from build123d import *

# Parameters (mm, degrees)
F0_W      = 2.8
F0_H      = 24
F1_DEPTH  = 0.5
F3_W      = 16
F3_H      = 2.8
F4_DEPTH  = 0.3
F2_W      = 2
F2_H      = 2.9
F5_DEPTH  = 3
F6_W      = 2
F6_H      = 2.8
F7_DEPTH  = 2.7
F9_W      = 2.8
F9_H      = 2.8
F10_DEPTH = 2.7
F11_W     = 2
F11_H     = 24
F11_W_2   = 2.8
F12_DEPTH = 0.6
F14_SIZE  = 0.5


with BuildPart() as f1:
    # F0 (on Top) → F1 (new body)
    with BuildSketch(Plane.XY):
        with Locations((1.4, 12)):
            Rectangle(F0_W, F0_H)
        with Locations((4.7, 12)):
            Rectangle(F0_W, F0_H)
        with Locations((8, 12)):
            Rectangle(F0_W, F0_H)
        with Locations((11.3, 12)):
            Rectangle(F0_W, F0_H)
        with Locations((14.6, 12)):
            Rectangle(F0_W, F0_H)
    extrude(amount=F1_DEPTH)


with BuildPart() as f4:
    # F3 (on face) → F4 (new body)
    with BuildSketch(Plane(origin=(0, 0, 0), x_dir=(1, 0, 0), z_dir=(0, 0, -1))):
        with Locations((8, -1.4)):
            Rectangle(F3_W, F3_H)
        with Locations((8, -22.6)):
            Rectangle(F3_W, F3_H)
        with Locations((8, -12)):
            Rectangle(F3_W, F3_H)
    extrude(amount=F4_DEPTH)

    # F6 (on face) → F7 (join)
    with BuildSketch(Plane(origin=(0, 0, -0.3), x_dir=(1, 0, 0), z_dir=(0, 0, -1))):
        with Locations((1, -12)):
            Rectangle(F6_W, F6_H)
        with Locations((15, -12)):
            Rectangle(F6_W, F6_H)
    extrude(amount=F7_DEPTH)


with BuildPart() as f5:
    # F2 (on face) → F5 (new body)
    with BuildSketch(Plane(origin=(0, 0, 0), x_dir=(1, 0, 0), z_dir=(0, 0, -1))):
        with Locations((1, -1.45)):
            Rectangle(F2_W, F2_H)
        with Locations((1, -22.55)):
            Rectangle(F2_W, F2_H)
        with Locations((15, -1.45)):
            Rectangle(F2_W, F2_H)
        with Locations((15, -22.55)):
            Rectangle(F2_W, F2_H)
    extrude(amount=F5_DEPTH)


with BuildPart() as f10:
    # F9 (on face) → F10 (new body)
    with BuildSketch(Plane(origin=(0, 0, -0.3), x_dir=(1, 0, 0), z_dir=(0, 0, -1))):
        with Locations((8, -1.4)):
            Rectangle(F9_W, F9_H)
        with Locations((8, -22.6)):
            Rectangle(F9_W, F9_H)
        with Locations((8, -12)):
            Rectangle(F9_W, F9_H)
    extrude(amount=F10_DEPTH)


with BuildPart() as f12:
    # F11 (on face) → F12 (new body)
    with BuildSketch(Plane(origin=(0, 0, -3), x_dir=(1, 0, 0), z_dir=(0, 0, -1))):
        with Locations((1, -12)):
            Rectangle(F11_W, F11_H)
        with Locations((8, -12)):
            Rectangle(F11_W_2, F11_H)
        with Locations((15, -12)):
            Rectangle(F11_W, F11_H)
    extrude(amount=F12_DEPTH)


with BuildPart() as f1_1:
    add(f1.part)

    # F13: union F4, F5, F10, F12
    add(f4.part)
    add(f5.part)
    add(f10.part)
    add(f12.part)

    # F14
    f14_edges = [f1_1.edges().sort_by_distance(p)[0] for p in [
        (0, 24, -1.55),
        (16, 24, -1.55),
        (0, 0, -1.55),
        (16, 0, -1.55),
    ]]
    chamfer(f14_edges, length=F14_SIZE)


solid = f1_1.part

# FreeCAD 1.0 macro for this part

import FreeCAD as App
import Part
import Sketcher


def edges_at(feature, points):
    """Names of the edges that pass closest to the given points."""
    edges = feature.Shape.Edges
    near = lambda p: min(range(len(edges)), key=lambda i: edges[i].distToShape(Part.Vertex(*p))[0])
    return sorted({f"Edge{near(p) + 1}" for p in points})


def add_polygon(sketch, points):
    """Adds a closed chain of lines whose ends are joined by coincident constraints."""
    first, n = sketch.GeometryCount, len(points)
    for a, b in zip(points, points[1:] + points[:1]):
        sketch.addGeometry(Part.LineSegment(App.Vector(*a, 0), App.Vector(*b, 0)), False)
    for i in range(n):
        sketch.addConstraint(Sketcher.Constraint("Coincident", first + i, 2, first + (i + 1) % n, 1))

doc = App.newDocument("Part")
body = doc.addObject("PartDesign::Body", "Body")
body.AllowCompound = True

# Sketch on XY plane
sketch1 = body.newObject("Sketcher::SketchObject", "Sketch")
sketch1.AttachmentSupport = (doc.getObject("XY_Plane"), [""])
sketch1.MapMode = "FlatFace"
add_polygon(sketch1, [(0, 24), (0, 0), (2.8, 0), (2.8, 24)])  # lines 0-3
add_polygon(sketch1, [(3.3, 24), (3.3, 0), (6.1, 0), (6.1, 24)])  # lines 4-7
add_polygon(sketch1, [(6.6, 24), (6.6, 0), (9.4, 0), (9.4, 24)])  # lines 8-11
add_polygon(sketch1, [(9.9, 24), (9.9, 0), (12.7, 0), (12.7, 24)])  # lines 12-15
add_polygon(sketch1, [(13.2, 24), (13.2, 0), (16, 0), (16, 24)])  # lines 16-19
sketch1.addConstraint(Sketcher.Constraint("Vertical", 0))
sketch1.addConstraint(Sketcher.Constraint("Horizontal", 1))
sketch1.addConstraint(Sketcher.Constraint("Vertical", 2))
sketch1.addConstraint(Sketcher.Constraint("Horizontal", 3))
sketch1.addConstraint(Sketcher.Constraint("Vertical", 4))
sketch1.addConstraint(Sketcher.Constraint("Horizontal", 5))
sketch1.addConstraint(Sketcher.Constraint("Vertical", 6))
sketch1.addConstraint(Sketcher.Constraint("Horizontal", 7))
sketch1.addConstraint(Sketcher.Constraint("Vertical", 8))
sketch1.addConstraint(Sketcher.Constraint("Horizontal", 9))
sketch1.addConstraint(Sketcher.Constraint("Vertical", 10))
sketch1.addConstraint(Sketcher.Constraint("Horizontal", 11))
sketch1.addConstraint(Sketcher.Constraint("Vertical", 12))
sketch1.addConstraint(Sketcher.Constraint("Horizontal", 13))
sketch1.addConstraint(Sketcher.Constraint("Vertical", 14))
sketch1.addConstraint(Sketcher.Constraint("Horizontal", 15))
sketch1.addConstraint(Sketcher.Constraint("Vertical", 16))
sketch1.addConstraint(Sketcher.Constraint("Horizontal", 17))
sketch1.addConstraint(Sketcher.Constraint("Vertical", 18))
sketch1.addConstraint(Sketcher.Constraint("Horizontal", 19))
sketch1.addConstraint(Sketcher.Constraint("Coincident", 0, 2, -1, 1))
sketch1.addConstraint(Sketcher.Constraint("PointOnObject", 4, 2, -1))
sketch1.addConstraint(Sketcher.Constraint("PointOnObject", 8, 2, -1))
sketch1.addConstraint(Sketcher.Constraint("PointOnObject", 12, 2, -1))
sketch1.addConstraint(Sketcher.Constraint("PointOnObject", 16, 2, -1))
sketch1.addConstraint(Sketcher.Constraint("Horizontal", 3, 2, 6, 2))
sketch1.addConstraint(Sketcher.Constraint("Horizontal", 7, 2, 10, 2))
sketch1.addConstraint(Sketcher.Constraint("Horizontal", 11, 2, 14, 2))
sketch1.addConstraint(Sketcher.Constraint("Horizontal", 15, 2, 18, 2))
sketch1.addConstraint(Sketcher.Constraint("Equal", 3, 5))
sketch1.addConstraint(Sketcher.Constraint("Equal", 7, 9))
sketch1.addConstraint(Sketcher.Constraint("Equal", 11, 13))
sketch1.addConstraint(Sketcher.Constraint("Equal", 15, 17))
sketch1.addConstraint(Sketcher.Constraint("DistanceY", 0, 2, 0, 1, 24.0))
sketch1.addConstraint(Sketcher.Constraint("DistanceX", 1, 1, 1, 2, 2.8))
sketch1.addConstraint(Sketcher.Constraint("DistanceX", -1, 1, 17, 2, 16.0))
sketch1.addConstraint(Sketcher.Constraint("DistanceX", -1, 1, 4, 2, 3.3))
sketch1.addConstraint(Sketcher.Constraint("DistanceX", -1, 1, 8, 2, 6.6))
sketch1.addConstraint(Sketcher.Constraint("DistanceX", -1, 1, 12, 2, 9.9))
pad1 = body.newObject("PartDesign::Pad", "Pad")
pad1.Profile = sketch1
pad1.Length = 0.5
body2 = doc.addObject("PartDesign::Body", "Body001")
body2.AllowCompound = True

# Sketch on XY plane
sketch2 = body2.newObject("Sketcher::SketchObject", "Sketch001")
sketch2.AttachmentSupport = (doc.getObject("XY_Plane001"), [""])
sketch2.MapMode = "FlatFace"
add_polygon(sketch2, [(0, 0), (0, 2.8), (16, 2.8), (16, 0)])  # lines 0-3
add_polygon(sketch2, [(0, 21.2), (0, 24), (16, 24), (16, 21.2)])  # lines 4-7
add_polygon(sketch2, [(0, 10.6), (0, 13.4), (16, 13.4), (16, 10.6)])  # lines 8-11
sketch2.addConstraint(Sketcher.Constraint("Vertical", 0))
sketch2.addConstraint(Sketcher.Constraint("Horizontal", 1))
sketch2.addConstraint(Sketcher.Constraint("Vertical", 2))
sketch2.addConstraint(Sketcher.Constraint("Horizontal", 3))
sketch2.addConstraint(Sketcher.Constraint("Vertical", 4))
sketch2.addConstraint(Sketcher.Constraint("Horizontal", 5))
sketch2.addConstraint(Sketcher.Constraint("Vertical", 6))
sketch2.addConstraint(Sketcher.Constraint("Horizontal", 7))
sketch2.addConstraint(Sketcher.Constraint("Vertical", 8))
sketch2.addConstraint(Sketcher.Constraint("Horizontal", 9))
sketch2.addConstraint(Sketcher.Constraint("Vertical", 10))
sketch2.addConstraint(Sketcher.Constraint("Horizontal", 11))
sketch2.addConstraint(Sketcher.Constraint("Coincident", 3, 2, -1, 1))
sketch2.addConstraint(Sketcher.Constraint("PointOnObject", 4, 2, -2))
sketch2.addConstraint(Sketcher.Constraint("PointOnObject", 8, 2, -2))
sketch2.addConstraint(Sketcher.Constraint("Vertical", 2, 2, 5, 2))
sketch2.addConstraint(Sketcher.Constraint("Vertical", 6, 2, 9, 2))
sketch2.addConstraint(Sketcher.Constraint("Equal", 2, 4))
sketch2.addConstraint(Sketcher.Constraint("Equal", 6, 8))
sketch2.addConstraint(Sketcher.Constraint("DistanceX", 1, 1, 1, 2, 16.0))
sketch2.addConstraint(Sketcher.Constraint("DistanceY", 0, 1, 0, 2, 2.8))
sketch2.addConstraint(Sketcher.Constraint("DistanceY", -1, 1, 4, 2, 24.0))
sketch2.addConstraint(Sketcher.Constraint("DistanceY", -1, 1, 8, 2, 13.4))
pad2 = body2.newObject("PartDesign::Pad", "Pad001")
pad2.Profile = sketch2
pad2.Length = 0.3
pad2.Reversed = True

# Sketch on XY plane
sketch3 = body2.newObject("Sketcher::SketchObject", "Sketch002")
sketch3.AttachmentSupport = (doc.getObject("XY_Plane001"), [""])
sketch3.MapMode = "FlatFace"
sketch3.AttachmentOffset = App.Placement(App.Vector(0, 0, -0.3), App.Rotation())
add_polygon(sketch3, [(0, 10.6), (0, 13.4), (2, 13.4), (2, 10.6)])  # lines 0-3
add_polygon(sketch3, [(14, 10.6), (14, 13.4), (16, 13.4), (16, 10.6)])  # lines 4-7
sketch3.addConstraint(Sketcher.Constraint("Vertical", 0))
sketch3.addConstraint(Sketcher.Constraint("Horizontal", 1))
sketch3.addConstraint(Sketcher.Constraint("Vertical", 2))
sketch3.addConstraint(Sketcher.Constraint("Horizontal", 3))
sketch3.addConstraint(Sketcher.Constraint("Vertical", 4))
sketch3.addConstraint(Sketcher.Constraint("Horizontal", 5))
sketch3.addConstraint(Sketcher.Constraint("Vertical", 6))
sketch3.addConstraint(Sketcher.Constraint("Horizontal", 7))
sketch3.addConstraint(Sketcher.Constraint("PointOnObject", 0, 2, -2))
sketch3.addConstraint(Sketcher.Constraint("Horizontal", 1, 2, 4, 2))
sketch3.addConstraint(Sketcher.Constraint("Horizontal", 3, 2, 6, 2))
sketch3.addConstraint(Sketcher.Constraint("Equal", 3, 5))
sketch3.addConstraint(Sketcher.Constraint("DistanceX", 1, 1, 1, 2, 2.0))
sketch3.addConstraint(Sketcher.Constraint("DistanceY", 0, 1, 0, 2, 2.8))
sketch3.addConstraint(Sketcher.Constraint("DistanceX", -1, 1, 4, 2, 14.0))
sketch3.addConstraint(Sketcher.Constraint("DistanceY", -1, 1, 0, 2, 13.4))
pad3 = body2.newObject("PartDesign::Pad", "Pad002")
pad3.Profile = sketch3
pad3.Length = 2.7
pad3.Reversed = True
body3 = doc.addObject("PartDesign::Body", "Body002")
body3.AllowCompound = True

# Sketch on XY plane
sketch4 = body3.newObject("Sketcher::SketchObject", "Sketch003")
sketch4.AttachmentSupport = (doc.getObject("XY_Plane002"), [""])
sketch4.MapMode = "FlatFace"
add_polygon(sketch4, [(0, 0), (0, 2.9), (2, 2.9), (2, 0)])  # lines 0-3
add_polygon(sketch4, [(0, 21.1), (0, 24), (2, 24), (2, 21.1)])  # lines 4-7
add_polygon(sketch4, [(14, 0), (14, 2.9), (16, 2.9), (16, 0)])  # lines 8-11
add_polygon(sketch4, [(14, 21.1), (14, 24), (16, 24), (16, 21.1)])  # lines 12-15
sketch4.addConstraint(Sketcher.Constraint("Vertical", 0))
sketch4.addConstraint(Sketcher.Constraint("Horizontal", 1))
sketch4.addConstraint(Sketcher.Constraint("Vertical", 2))
sketch4.addConstraint(Sketcher.Constraint("Horizontal", 3))
sketch4.addConstraint(Sketcher.Constraint("Vertical", 4))
sketch4.addConstraint(Sketcher.Constraint("Horizontal", 5))
sketch4.addConstraint(Sketcher.Constraint("Vertical", 6))
sketch4.addConstraint(Sketcher.Constraint("Horizontal", 7))
sketch4.addConstraint(Sketcher.Constraint("Vertical", 8))
sketch4.addConstraint(Sketcher.Constraint("Horizontal", 9))
sketch4.addConstraint(Sketcher.Constraint("Vertical", 10))
sketch4.addConstraint(Sketcher.Constraint("Horizontal", 11))
sketch4.addConstraint(Sketcher.Constraint("Vertical", 12))
sketch4.addConstraint(Sketcher.Constraint("Horizontal", 13))
sketch4.addConstraint(Sketcher.Constraint("Vertical", 14))
sketch4.addConstraint(Sketcher.Constraint("Horizontal", 15))
sketch4.addConstraint(Sketcher.Constraint("Coincident", 3, 2, -1, 1))
sketch4.addConstraint(Sketcher.Constraint("PointOnObject", 4, 2, -2))
sketch4.addConstraint(Sketcher.Constraint("PointOnObject", 10, 2, -1))
sketch4.addConstraint(Sketcher.Constraint("Horizontal", 1, 2, 8, 2))
sketch4.addConstraint(Sketcher.Constraint("Horizontal", 5, 2, 12, 2))
sketch4.addConstraint(Sketcher.Constraint("Horizontal", 7, 2, 14, 2))
sketch4.addConstraint(Sketcher.Constraint("Vertical", 2, 2, 5, 2))
sketch4.addConstraint(Sketcher.Constraint("Vertical", 11, 2, 12, 2))
sketch4.addConstraint(Sketcher.Constraint("Vertical", 10, 2, 13, 2))
sketch4.addConstraint(Sketcher.Constraint("Equal", 7, 9))
sketch4.addConstraint(Sketcher.Constraint("Equal", 2, 4))
sketch4.addConstraint(Sketcher.Constraint("DistanceX", 1, 1, 1, 2, 2.0))
sketch4.addConstraint(Sketcher.Constraint("DistanceY", 0, 1, 0, 2, 2.9))
sketch4.addConstraint(Sketcher.Constraint("DistanceY", -1, 1, 4, 2, 24.0))
sketch4.addConstraint(Sketcher.Constraint("DistanceX", -1, 1, 8, 2, 14.0))
pad4 = body3.newObject("PartDesign::Pad", "Pad003")
pad4.Profile = sketch4
pad4.Length = 3
pad4.Reversed = True
body4 = doc.addObject("PartDesign::Body", "Body003")
body4.AllowCompound = True

# Sketch on XY plane
sketch5 = body4.newObject("Sketcher::SketchObject", "Sketch004")
sketch5.AttachmentSupport = (doc.getObject("XY_Plane003"), [""])
sketch5.MapMode = "FlatFace"
sketch5.AttachmentOffset = App.Placement(App.Vector(0, 0, -0.3), App.Rotation())
add_polygon(sketch5, [(6.6, 0), (6.6, 2.8), (9.4, 2.8), (9.4, 0)])  # lines 0-3
add_polygon(sketch5, [(6.6, 21.2), (6.6, 24), (9.4, 24), (9.4, 21.2)])  # lines 4-7
add_polygon(sketch5, [(6.6, 10.6), (6.6, 13.4), (9.4, 13.4), (9.4, 10.6)])  # lines 8-11
sketch5.addConstraint(Sketcher.Constraint("Vertical", 0))
sketch5.addConstraint(Sketcher.Constraint("Horizontal", 1))
sketch5.addConstraint(Sketcher.Constraint("Vertical", 2))
sketch5.addConstraint(Sketcher.Constraint("Horizontal", 3))
sketch5.addConstraint(Sketcher.Constraint("Vertical", 4))
sketch5.addConstraint(Sketcher.Constraint("Horizontal", 5))
sketch5.addConstraint(Sketcher.Constraint("Vertical", 6))
sketch5.addConstraint(Sketcher.Constraint("Horizontal", 7))
sketch5.addConstraint(Sketcher.Constraint("Vertical", 8))
sketch5.addConstraint(Sketcher.Constraint("Horizontal", 9))
sketch5.addConstraint(Sketcher.Constraint("Vertical", 10))
sketch5.addConstraint(Sketcher.Constraint("Horizontal", 11))
sketch5.addConstraint(Sketcher.Constraint("PointOnObject", 2, 2, -1))
sketch5.addConstraint(Sketcher.Constraint("Vertical", 3, 2, 4, 2))
sketch5.addConstraint(Sketcher.Constraint("Vertical", 2, 2, 5, 2))
sketch5.addConstraint(Sketcher.Constraint("Vertical", 7, 2, 8, 2))
sketch5.addConstraint(Sketcher.Constraint("Vertical", 6, 2, 9, 2))
sketch5.addConstraint(Sketcher.Constraint("Equal", 11, 0))
sketch5.addConstraint(Sketcher.Constraint("Equal", 2, 4))
sketch5.addConstraint(Sketcher.Constraint("Equal", 6, 8))
sketch5.addConstraint(Sketcher.Constraint("DistanceX", 1, 1, 1, 2, 2.8))
sketch5.addConstraint(Sketcher.Constraint("DistanceY", -1, 1, 4, 2, 24.0))
sketch5.addConstraint(Sketcher.Constraint("DistanceX", -1, 1, 0, 2, 6.6))
sketch5.addConstraint(Sketcher.Constraint("DistanceY", -1, 1, 8, 2, 13.4))
pad5 = body4.newObject("PartDesign::Pad", "Pad004")
pad5.Profile = sketch5
pad5.Length = 2.7
pad5.Reversed = True
body5 = doc.addObject("PartDesign::Body", "Body004")
body5.AllowCompound = True

# Sketch on XY plane
sketch6 = body5.newObject("Sketcher::SketchObject", "Sketch005")
sketch6.AttachmentSupport = (doc.getObject("XY_Plane004"), [""])
sketch6.MapMode = "FlatFace"
sketch6.AttachmentOffset = App.Placement(App.Vector(0, 0, -3), App.Rotation())
add_polygon(sketch6, [(0, 0), (0, 24), (2, 24), (2, 0)])  # lines 0-3
add_polygon(sketch6, [(6.6, 0), (6.6, 24), (9.4, 24), (9.4, 0)])  # lines 4-7
add_polygon(sketch6, [(14, 0), (14, 24), (16, 24), (16, 0)])  # lines 8-11
sketch6.addConstraint(Sketcher.Constraint("Vertical", 0))
sketch6.addConstraint(Sketcher.Constraint("Horizontal", 1))
sketch6.addConstraint(Sketcher.Constraint("Vertical", 2))
sketch6.addConstraint(Sketcher.Constraint("Horizontal", 3))
sketch6.addConstraint(Sketcher.Constraint("Vertical", 4))
sketch6.addConstraint(Sketcher.Constraint("Horizontal", 5))
sketch6.addConstraint(Sketcher.Constraint("Vertical", 6))
sketch6.addConstraint(Sketcher.Constraint("Horizontal", 7))
sketch6.addConstraint(Sketcher.Constraint("Vertical", 8))
sketch6.addConstraint(Sketcher.Constraint("Horizontal", 9))
sketch6.addConstraint(Sketcher.Constraint("Vertical", 10))
sketch6.addConstraint(Sketcher.Constraint("Horizontal", 11))
sketch6.addConstraint(Sketcher.Constraint("Coincident", 3, 2, -1, 1))
sketch6.addConstraint(Sketcher.Constraint("PointOnObject", 6, 2, -1))
sketch6.addConstraint(Sketcher.Constraint("PointOnObject", 10, 2, -1))
sketch6.addConstraint(Sketcher.Constraint("Horizontal", 1, 2, 4, 2))
sketch6.addConstraint(Sketcher.Constraint("Horizontal", 5, 2, 8, 2))
sketch6.addConstraint(Sketcher.Constraint("Equal", 3, 9))
sketch6.addConstraint(Sketcher.Constraint("DistanceX", 1, 1, 1, 2, 2.0))
sketch6.addConstraint(Sketcher.Constraint("DistanceY", 0, 1, 0, 2, 24.0))
sketch6.addConstraint(Sketcher.Constraint("DistanceX", 5, 1, 5, 2, 2.8))
sketch6.addConstraint(Sketcher.Constraint("DistanceX", -1, 1, 8, 2, 14.0))
sketch6.addConstraint(Sketcher.Constraint("DistanceX", -1, 1, 4, 2, 6.6))
pad6 = body5.newObject("PartDesign::Pad", "Pad005")
pad6.Profile = sketch6
pad6.Length = 0.6
pad6.Reversed = True
doc.recompute()

boolean = body.newObject("PartDesign::Boolean", "Boolean")
boolean.Type = "Fuse"
boolean.addObjects([body2])
doc.recompute()

boolean2 = body.newObject("PartDesign::Boolean", "Boolean001")
boolean2.Type = "Fuse"
boolean2.addObjects([body3])
doc.recompute()

boolean3 = body.newObject("PartDesign::Boolean", "Boolean002")
boolean3.Type = "Fuse"
boolean3.addObjects([body4])
doc.recompute()

boolean4 = body.newObject("PartDesign::Boolean", "Boolean003")
boolean4.Type = "Fuse"
boolean4.addObjects([body5])
doc.recompute()

chamfer = body.newObject("PartDesign::Chamfer", "Chamfer")
chamfer.Base = (boolean4, edges_at(boolean4, [
    (0, 24, -1.55),
    (16, 24, -1.55),
    (0, 0, -1.55),
    (16, 0, -1.55),
]))
chamfer.Size = 0.5

doc.recompute()
